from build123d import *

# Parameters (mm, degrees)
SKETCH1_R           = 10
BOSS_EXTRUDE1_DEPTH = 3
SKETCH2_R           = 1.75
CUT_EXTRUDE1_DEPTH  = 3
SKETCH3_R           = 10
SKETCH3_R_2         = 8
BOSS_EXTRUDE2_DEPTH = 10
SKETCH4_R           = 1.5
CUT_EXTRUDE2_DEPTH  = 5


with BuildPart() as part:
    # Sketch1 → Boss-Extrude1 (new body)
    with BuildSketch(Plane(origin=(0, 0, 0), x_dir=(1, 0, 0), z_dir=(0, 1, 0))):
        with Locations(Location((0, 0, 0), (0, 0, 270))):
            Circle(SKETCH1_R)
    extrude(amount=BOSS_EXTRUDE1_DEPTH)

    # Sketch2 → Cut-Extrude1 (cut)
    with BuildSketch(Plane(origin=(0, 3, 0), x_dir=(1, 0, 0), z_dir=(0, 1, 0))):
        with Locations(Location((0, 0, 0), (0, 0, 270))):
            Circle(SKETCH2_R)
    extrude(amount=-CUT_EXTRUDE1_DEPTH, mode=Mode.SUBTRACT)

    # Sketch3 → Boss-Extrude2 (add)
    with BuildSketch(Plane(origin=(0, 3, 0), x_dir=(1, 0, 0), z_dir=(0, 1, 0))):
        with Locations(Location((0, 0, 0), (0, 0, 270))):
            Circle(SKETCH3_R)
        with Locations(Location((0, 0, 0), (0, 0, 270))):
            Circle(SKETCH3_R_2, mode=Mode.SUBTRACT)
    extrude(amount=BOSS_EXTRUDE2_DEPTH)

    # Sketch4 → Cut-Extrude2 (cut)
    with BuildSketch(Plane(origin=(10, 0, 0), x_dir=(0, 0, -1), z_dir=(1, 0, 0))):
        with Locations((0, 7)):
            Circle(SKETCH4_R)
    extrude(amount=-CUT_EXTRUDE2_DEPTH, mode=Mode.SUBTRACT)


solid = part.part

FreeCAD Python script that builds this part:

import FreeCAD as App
import Part
import Sketcher

V = App.Vector

doc = App.newDocument("Part")
params = doc.addObject("Spreadsheet::Sheet", "Params")
for row, (alias, value) in enumerate([
    ("sketch1_diameter", "20 mm"),
    ("pad1_length", "3 mm"),
    ("sketch2_diameter", "3.5 mm"),
    ("pocket1_length", "3 mm"),
    ("sketch3_diameter", "20 mm"),
    ("sketch3_diameter2", "16 mm"),
    ("pad2_length", "10 mm"),
    ("sketch4_diameter", "3 mm"),
    ("pocket2_length", "5 mm"),
], start=1):
    params.set(f"A{row}", alias)
    params.set(f"B{row}", "=" + value)
    params.setAlias(f"B{row}", alias)

body = doc.addObject("PartDesign::Body", "Body")

sketch1 = body.newObject("Sketcher::SketchObject", "Sketch")
sketch1.AttachmentSupport = (doc.getObject("XZ_Plane"), [""])
sketch1.MapMode = "FlatFace"
sketch1.addGeometry(Part.Circle(V(0, 0, 0), V(0, 0, 1), 10), False)
sketch1.addConstraint([
    Sketcher.Constraint("Coincident", 0, 3, -1, 1),
    Sketcher.Constraint("Diameter", 0, 20.0),
])
sketch1.setExpression("Constraints[1]", "Params.sketch1_diameter")
pad1 = body.newObject("PartDesign::Pad", "Pad")
pad1.Profile = sketch1
pad1.setExpression("Length", "Params.pad1_length")
pad1.Reversed = True

sketch2 = body.newObject("Sketcher::SketchObject", "Sketch001")
sketch2.AttachmentSupport = (doc.getObject("XZ_Plane"), [""])
sketch2.MapMode = "FlatFace"
sketch2.AttachmentOffset = App.Placement(V(0, 0, -3), App.Rotation())
sketch2.addGeometry(Part.Circle(V(0, 0, 0), V(0, 0, 1), 1.8), False)
sketch2.addConstraint([
    Sketcher.Constraint("Coincident", 0, 3, -1, 1),
    Sketcher.Constraint("Diameter", 0, 3.5),
])
sketch2.setExpression("Constraints[1]", "Params.sketch2_diameter")
pocket1 = body.newObject("PartDesign::Pocket", "Pocket")
pocket1.Profile = sketch2
pocket1.setExpression("Length", "Params.pocket1_length")
pocket1.Reversed = True

sketch3 = body.newObject("Sketcher::SketchObject", "Sketch002")
sketch3.AttachmentSupport = (doc.getObject("XZ_Plane"), [""])
sketch3.MapMode = "FlatFace"
sketch3.AttachmentOffset = App.Placement(V(0, 0, -3), App.Rotation())
sketch3.addGeometry([
    Part.Circle(V(0, 0, 0), V(0, 0, 1), 10),
    Part.Circle(V(0, 0, 0), V(0, 0, 1), 8),
], False)
sketch3.addConstraint([
    Sketcher.Constraint("Coincident", 0, 3, -1, 1),
    Sketcher.Constraint("Coincident", 1, 3, -1, 1),
    Sketcher.Constraint("Diameter", 0, 20.0),
    Sketcher.Constraint("Diameter", 1, 16.0),
])
sketch3.setExpression("Constraints[2]", "Params.sketch3_diameter")
sketch3.setExpression("Constraints[3]", "Params.sketch3_diameter2")
pad2 = body.newObject("PartDesign::Pad", "Pad001")
pad2.Profile = sketch3
pad2.setExpression("Length", "Params.pad2_length")
pad2.Reversed = True

sketch4 = body.newObject("Sketcher::SketchObject", "Sketch003")
sketch4.AttachmentSupport = (doc.getObject("YZ_Plane"), [""])
sketch4.MapMode = "FlatFace"
sketch4.AttachmentOffset = App.Placement(V(0, 0, 10), App.Rotation())
sketch4.addGeometry(Part.Circle(V(7, 0, 0), V(0, 0, 1), 1.5), False)
sketch4.addConstraint([
    Sketcher.Constraint("PointOnObject", 0, 3, -1),
    Sketcher.Constraint("Diameter", 0, 3.0),
    Sketcher.Constraint("DistanceX", -1, 1, 0, 3, 7.0),
])
sketch4.setExpression("Constraints[1]", "Params.sketch4_diameter")
pocket2 = body.newObject("PartDesign::Pocket", "Pocket001")
pocket2.Profile = sketch4
pocket2.setExpression("Length", "Params.pocket2_length")

doc.recompute()
